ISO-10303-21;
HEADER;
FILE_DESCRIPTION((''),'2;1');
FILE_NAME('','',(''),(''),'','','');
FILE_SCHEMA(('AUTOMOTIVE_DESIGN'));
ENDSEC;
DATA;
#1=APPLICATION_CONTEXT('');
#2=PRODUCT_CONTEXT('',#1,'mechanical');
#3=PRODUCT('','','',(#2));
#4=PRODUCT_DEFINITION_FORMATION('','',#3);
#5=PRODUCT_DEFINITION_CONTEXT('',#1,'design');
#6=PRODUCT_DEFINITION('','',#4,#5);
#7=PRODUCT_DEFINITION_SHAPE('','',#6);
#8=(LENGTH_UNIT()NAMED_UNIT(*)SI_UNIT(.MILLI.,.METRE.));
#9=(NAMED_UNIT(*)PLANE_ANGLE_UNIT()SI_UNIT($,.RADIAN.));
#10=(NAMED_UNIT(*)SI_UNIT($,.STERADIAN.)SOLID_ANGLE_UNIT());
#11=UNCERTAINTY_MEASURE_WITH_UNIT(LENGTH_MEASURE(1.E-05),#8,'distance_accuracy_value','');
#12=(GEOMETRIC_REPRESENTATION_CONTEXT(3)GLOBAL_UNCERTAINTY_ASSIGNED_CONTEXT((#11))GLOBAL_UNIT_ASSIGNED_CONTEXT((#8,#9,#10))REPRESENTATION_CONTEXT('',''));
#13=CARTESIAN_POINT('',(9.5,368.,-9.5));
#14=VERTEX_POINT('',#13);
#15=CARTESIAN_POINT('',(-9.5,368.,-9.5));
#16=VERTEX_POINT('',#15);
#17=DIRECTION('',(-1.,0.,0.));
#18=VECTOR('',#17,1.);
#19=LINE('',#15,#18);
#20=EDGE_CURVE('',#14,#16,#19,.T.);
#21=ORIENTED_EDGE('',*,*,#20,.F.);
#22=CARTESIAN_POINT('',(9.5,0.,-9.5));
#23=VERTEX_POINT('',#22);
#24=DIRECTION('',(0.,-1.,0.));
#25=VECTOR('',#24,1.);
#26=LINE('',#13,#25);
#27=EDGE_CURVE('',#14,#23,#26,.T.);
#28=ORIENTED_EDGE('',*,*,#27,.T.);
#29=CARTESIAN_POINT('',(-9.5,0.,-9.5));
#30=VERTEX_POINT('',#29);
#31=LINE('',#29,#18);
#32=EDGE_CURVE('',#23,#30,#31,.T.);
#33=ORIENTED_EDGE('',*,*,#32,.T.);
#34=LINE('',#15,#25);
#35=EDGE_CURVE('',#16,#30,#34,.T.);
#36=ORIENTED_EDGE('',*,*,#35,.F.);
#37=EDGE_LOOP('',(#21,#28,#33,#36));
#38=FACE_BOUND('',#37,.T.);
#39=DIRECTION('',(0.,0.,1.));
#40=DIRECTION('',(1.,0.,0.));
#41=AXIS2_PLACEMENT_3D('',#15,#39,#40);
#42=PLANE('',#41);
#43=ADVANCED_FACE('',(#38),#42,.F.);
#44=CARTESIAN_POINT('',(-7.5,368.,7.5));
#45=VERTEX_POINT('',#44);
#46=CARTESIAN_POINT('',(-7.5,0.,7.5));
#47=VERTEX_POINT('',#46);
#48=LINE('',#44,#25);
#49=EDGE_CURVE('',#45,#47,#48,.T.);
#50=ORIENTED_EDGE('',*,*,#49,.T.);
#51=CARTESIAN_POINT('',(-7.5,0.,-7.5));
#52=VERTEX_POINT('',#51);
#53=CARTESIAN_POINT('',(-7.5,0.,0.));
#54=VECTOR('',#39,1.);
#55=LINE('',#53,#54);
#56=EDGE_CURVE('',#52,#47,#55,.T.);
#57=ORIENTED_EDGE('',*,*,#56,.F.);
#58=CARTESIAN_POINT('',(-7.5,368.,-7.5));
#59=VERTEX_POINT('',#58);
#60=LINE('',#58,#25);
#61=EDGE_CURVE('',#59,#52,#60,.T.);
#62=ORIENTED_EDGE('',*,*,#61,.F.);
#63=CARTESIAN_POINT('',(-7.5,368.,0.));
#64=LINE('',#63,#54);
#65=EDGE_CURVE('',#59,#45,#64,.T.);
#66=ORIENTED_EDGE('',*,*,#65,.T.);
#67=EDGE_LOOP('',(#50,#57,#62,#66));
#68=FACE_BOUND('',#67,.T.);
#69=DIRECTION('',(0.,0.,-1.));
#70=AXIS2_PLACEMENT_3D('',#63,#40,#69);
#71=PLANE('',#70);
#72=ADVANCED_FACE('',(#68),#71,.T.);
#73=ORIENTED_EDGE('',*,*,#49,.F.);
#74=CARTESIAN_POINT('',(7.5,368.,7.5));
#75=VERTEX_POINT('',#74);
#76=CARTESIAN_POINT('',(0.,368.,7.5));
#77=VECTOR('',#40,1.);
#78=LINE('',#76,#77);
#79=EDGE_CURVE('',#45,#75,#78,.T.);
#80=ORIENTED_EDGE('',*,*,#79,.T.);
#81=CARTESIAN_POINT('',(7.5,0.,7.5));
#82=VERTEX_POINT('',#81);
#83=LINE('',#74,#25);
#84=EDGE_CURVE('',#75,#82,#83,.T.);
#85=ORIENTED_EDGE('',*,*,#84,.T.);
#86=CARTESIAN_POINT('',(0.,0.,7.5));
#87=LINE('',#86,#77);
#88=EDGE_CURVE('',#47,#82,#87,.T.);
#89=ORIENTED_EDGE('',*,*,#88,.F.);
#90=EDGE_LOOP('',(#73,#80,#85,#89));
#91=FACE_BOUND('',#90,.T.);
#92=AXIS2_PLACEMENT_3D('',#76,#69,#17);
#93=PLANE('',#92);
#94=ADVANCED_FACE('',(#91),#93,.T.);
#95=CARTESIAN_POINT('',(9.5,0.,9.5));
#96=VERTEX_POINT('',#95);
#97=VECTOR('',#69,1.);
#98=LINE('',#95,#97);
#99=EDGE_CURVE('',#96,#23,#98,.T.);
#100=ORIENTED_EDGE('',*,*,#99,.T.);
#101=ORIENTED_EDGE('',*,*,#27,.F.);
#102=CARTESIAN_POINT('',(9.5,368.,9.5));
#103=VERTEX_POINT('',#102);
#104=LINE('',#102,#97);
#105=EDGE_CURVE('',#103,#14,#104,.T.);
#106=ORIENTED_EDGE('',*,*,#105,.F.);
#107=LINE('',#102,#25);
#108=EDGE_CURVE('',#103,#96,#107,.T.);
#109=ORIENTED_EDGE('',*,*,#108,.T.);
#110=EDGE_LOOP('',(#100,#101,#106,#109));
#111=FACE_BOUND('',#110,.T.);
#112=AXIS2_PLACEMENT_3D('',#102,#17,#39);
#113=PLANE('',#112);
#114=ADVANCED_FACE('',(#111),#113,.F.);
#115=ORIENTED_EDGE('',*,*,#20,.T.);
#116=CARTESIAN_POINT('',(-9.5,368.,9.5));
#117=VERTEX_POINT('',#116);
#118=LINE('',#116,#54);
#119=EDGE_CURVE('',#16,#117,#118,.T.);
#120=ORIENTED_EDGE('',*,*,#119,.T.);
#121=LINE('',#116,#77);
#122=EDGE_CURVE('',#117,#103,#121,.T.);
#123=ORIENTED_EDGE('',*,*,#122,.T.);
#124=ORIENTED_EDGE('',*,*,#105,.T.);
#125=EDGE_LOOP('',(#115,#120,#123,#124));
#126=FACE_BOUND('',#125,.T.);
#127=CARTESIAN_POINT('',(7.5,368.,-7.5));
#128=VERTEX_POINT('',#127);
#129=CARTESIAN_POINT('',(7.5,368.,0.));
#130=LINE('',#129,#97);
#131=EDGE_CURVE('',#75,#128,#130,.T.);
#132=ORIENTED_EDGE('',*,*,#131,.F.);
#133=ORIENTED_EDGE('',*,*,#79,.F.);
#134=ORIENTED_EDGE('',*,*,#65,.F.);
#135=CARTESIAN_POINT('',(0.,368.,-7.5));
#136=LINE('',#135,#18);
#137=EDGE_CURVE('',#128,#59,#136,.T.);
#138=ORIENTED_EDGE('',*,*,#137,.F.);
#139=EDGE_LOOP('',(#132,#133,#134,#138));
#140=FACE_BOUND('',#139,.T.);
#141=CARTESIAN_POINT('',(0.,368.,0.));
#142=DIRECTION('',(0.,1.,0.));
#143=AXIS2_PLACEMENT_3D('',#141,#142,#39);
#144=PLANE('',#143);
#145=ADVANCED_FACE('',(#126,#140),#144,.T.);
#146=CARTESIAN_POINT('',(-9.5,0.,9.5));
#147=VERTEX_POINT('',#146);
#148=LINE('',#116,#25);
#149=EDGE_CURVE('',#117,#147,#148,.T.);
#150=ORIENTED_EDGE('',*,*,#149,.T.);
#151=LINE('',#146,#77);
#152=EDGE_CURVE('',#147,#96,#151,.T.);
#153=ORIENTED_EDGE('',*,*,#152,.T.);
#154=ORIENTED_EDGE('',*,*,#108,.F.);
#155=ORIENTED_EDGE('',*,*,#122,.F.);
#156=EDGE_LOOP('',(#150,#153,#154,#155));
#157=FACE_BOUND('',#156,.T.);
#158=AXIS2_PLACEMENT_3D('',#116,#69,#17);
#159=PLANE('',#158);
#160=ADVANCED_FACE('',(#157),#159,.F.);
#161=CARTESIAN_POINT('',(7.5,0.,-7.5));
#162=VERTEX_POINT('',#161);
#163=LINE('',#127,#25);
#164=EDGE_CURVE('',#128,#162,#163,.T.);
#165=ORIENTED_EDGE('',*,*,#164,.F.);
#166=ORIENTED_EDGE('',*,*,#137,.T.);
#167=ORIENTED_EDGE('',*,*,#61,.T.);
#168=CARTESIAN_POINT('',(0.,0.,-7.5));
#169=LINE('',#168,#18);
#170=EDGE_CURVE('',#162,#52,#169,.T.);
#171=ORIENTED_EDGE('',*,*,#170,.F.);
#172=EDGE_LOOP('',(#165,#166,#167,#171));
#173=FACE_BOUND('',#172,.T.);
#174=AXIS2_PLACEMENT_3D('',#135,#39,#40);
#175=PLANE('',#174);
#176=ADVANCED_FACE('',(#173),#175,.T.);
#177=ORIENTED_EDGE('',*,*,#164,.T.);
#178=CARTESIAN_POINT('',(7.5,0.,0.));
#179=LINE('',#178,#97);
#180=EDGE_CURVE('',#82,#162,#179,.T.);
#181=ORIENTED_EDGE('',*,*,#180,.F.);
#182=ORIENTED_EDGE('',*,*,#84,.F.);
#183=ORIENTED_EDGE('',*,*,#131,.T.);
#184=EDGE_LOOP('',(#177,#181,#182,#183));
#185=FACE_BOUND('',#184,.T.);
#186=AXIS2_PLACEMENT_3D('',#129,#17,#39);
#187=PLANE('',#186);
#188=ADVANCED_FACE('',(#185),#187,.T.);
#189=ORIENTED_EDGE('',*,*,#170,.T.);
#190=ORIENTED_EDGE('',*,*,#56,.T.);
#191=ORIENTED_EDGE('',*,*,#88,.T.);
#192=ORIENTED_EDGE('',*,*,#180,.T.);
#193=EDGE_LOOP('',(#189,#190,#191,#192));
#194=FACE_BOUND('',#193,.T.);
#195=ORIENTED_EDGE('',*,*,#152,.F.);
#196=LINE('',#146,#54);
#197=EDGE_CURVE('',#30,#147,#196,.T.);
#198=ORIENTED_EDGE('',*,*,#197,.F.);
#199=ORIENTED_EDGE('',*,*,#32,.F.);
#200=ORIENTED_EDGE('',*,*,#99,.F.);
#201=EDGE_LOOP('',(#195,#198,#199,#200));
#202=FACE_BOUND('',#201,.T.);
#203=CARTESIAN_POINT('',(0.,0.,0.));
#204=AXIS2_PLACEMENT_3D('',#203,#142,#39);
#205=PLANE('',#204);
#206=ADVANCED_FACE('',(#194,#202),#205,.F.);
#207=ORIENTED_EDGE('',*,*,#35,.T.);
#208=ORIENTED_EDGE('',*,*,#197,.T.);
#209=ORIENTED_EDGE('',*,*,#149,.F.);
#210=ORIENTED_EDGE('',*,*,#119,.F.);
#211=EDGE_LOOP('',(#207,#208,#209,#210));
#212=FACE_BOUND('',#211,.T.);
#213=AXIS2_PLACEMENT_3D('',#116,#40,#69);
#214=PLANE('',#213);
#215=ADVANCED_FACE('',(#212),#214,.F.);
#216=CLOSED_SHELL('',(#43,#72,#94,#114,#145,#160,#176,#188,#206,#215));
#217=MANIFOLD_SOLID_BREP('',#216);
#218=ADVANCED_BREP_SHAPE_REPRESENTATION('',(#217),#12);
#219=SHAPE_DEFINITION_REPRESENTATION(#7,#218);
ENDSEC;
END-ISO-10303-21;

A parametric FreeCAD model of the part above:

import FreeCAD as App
import Part
import Sketcher

V = App.Vector


def add_polygon(sketch, points):
    """Adds a closed chain of lines whose ends are joined by coincident constraints."""
    first, n = sketch.GeometryCount, len(points)
    for a, b in zip(points, points[1:] + points[:1]):
        sketch.addGeometry(Part.LineSegment(App.Vector(*a, 0), App.Vector(*b, 0)), False)
    for i in range(n):
        sketch.addConstraint(Sketcher.Constraint("Coincident", first + i, 2, first + (i + 1) % n, 1))

doc = App.newDocument("Part")
body = doc.addObject("PartDesign::Body", "Body")

# Sketch on XZ plane
sketch1 = body.newObject("Sketcher::SketchObject", "Sketch")
sketch1.AttachmentSupport = (doc.getObject("XZ_Plane"), [""])
sketch1.MapMode = "FlatFace"
add_polygon(sketch1, [(-10, -10), (-10, 10), (10, 10), (10, -10)])  # lines 0-3
add_polygon(sketch1, [(8, 8), (-8, 8), (-8, -8), (8, -8)])  # lines 4-7
sketch1.addConstraint(Sketcher.Constraint("Vertical", 0))
sketch1.addConstraint(Sketcher.Constraint("Horizontal", 1))
sketch1.addConstraint(Sketcher.Constraint("Vertical", 2))
sketch1.addConstraint(Sketcher.Constraint("Horizontal", 3))
sketch1.addConstraint(Sketcher.Constraint("Horizontal", 4))
sketch1.addConstraint(Sketcher.Constraint("Vertical", 5))
sketch1.addConstraint(Sketcher.Constraint("Horizontal", 6))
sketch1.addConstraint(Sketcher.Constraint("Vertical", 7))
sketch1.addConstraint(Sketcher.Constraint("Symmetric", 0, 2, 2, 2, -1, 1))
sketch1.addConstraint(Sketcher.Constraint("Symmetric", 4, 2, 6, 2, -1, 1))
sketch1.addConstraint(Sketcher.Constraint("Equal", 3, 0))
sketch1.addConstraint(Sketcher.Constraint("Equal", 6, 5))
sketch1.addConstraint(Sketcher.Constraint("DistanceX", 1, 1, 1, 2, 19.0))
sketch1.addConstraint(Sketcher.Constraint("DistanceX", 4, 2, 4, 1, 15.0))
pad1 = body.newObject("PartDesign::Pad", "Pad")
pad1.Profile = sketch1
pad1.Length = 368
pad1.Reversed = True

doc.recompute()
